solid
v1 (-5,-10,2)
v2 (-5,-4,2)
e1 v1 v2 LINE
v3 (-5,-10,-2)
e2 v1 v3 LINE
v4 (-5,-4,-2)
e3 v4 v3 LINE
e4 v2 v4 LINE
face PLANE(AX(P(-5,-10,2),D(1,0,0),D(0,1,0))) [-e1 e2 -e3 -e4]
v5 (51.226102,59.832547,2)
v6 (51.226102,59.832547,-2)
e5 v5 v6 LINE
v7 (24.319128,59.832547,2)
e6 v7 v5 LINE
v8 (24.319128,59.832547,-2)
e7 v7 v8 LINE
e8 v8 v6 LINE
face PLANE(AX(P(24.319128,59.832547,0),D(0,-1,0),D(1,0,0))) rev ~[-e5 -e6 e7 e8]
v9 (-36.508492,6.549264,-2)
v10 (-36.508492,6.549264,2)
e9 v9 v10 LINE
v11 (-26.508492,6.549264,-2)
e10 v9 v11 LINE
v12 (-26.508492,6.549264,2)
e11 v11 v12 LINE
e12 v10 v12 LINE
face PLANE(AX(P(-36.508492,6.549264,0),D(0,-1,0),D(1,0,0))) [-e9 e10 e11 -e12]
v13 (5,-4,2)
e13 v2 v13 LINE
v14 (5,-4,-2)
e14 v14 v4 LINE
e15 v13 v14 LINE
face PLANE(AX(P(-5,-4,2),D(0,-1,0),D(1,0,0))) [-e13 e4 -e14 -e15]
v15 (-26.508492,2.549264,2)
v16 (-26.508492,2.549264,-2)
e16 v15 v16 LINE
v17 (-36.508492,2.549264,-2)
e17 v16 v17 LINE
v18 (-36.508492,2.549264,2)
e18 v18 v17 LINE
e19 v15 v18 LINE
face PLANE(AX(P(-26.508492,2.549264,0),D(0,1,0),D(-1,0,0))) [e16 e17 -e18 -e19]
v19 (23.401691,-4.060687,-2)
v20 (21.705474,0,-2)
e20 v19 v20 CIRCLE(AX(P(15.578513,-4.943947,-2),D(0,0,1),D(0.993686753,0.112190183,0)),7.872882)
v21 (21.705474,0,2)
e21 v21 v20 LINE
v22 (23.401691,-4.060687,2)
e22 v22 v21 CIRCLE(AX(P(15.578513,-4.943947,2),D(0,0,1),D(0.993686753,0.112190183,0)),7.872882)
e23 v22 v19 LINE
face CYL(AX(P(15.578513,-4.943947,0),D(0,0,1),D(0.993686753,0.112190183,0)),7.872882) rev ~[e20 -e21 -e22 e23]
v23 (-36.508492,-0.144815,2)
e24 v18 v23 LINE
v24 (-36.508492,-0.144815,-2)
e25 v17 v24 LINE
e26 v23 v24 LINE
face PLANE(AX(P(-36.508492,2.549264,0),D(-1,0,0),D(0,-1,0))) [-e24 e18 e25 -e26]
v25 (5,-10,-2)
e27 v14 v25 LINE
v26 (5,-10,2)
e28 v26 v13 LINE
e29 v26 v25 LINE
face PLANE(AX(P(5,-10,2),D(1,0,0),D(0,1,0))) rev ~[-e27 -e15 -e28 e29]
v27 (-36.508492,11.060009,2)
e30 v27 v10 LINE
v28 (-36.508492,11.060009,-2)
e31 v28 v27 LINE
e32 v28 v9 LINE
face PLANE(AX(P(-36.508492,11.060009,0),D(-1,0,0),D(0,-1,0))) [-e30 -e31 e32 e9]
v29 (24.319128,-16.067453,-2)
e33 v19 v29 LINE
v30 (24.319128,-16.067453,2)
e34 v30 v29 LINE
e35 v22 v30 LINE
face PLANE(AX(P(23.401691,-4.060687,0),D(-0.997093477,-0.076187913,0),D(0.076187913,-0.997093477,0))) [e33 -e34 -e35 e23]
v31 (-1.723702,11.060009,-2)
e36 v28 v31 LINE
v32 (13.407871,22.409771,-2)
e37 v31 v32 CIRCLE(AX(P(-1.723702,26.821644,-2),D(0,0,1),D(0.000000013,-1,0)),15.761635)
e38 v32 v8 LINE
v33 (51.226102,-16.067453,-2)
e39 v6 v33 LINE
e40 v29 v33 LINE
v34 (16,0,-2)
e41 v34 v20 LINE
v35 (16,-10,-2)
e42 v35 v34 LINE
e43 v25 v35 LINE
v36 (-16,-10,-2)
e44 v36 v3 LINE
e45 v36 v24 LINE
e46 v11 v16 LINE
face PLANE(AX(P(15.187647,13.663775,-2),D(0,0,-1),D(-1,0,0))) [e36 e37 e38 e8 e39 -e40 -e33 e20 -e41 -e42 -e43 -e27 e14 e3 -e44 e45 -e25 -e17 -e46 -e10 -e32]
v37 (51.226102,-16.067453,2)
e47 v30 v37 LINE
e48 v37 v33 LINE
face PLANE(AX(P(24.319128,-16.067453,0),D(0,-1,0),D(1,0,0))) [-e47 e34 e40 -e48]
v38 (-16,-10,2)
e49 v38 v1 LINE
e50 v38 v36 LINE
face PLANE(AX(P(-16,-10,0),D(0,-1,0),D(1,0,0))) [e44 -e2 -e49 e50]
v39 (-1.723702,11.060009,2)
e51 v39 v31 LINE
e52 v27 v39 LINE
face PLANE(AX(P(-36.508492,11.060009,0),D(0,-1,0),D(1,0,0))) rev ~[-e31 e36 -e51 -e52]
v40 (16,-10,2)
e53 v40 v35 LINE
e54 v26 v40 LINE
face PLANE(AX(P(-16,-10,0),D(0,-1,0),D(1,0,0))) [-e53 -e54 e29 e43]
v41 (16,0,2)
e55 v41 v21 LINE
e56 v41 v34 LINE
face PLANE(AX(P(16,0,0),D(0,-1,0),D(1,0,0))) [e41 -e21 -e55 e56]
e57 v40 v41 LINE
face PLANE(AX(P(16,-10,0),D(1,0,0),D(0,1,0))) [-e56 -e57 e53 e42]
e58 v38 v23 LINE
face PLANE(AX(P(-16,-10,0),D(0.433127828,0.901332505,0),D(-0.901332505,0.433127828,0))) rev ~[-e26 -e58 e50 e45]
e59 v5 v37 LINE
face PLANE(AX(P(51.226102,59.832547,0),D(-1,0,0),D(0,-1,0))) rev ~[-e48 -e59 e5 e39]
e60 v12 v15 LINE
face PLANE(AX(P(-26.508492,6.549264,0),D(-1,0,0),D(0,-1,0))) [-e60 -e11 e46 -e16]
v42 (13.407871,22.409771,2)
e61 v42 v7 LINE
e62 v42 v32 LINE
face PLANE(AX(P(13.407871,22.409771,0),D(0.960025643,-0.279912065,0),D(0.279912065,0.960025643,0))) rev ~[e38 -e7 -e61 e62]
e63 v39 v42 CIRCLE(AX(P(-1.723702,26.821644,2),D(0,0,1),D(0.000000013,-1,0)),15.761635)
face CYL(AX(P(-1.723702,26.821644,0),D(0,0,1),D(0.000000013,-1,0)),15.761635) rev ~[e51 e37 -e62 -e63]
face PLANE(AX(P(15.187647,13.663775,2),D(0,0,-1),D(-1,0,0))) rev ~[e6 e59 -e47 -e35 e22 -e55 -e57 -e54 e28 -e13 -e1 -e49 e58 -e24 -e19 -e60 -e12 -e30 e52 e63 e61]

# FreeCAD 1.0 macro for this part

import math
import FreeCAD as App
import Part
import Sketcher
from FreeCAD import Vector
Q = App.Units.Quantity


def add_polygon(sketch, points):
    """Adds a closed chain of lines whose ends are joined by coincident constraints."""
    first, n = sketch.GeometryCount, len(points)
    for a, b in zip(points, points[1:] + points[:1]):
        sketch.addGeometry(Part.LineSegment(App.Vector(*a, 0), App.Vector(*b, 0)), False)
    for i in range(n):
        sketch.addConstraint(Sketcher.Constraint("Coincident", first + i, 2, first + (i + 1) % n, 1))

doc = App.newDocument("Part")
body = doc.addObject("PartDesign::Body", "Body")

sketch1 = body.newObject("Sketcher::SketchObject", "Sketch")
sketch1.AttachmentSupport = (doc.getObject("XY_Plane"), [""])
sketch1.MapMode = "FlatFace"
sketch1.addGeometry([
    Part.LineSegment(Vector(-1.723702, 11.060009, 0), Vector(-36.508492, 11.060009, 0)),
    Part.LineSegment(Vector(-36.508492, 11.060009, 0), Vector(-36.508492, 6.549264, 0)),
    Part.LineSegment(Vector(-36.508492, 6.549264, 0), Vector(-26.508492, 6.549264, 0)),
    Part.LineSegment(Vector(-26.508492, 6.549264, 0), Vector(-26.508492, 2.549264, 0)),
    Part.LineSegment(Vector(-26.508492, 2.549264, 0), Vector(-36.508492, 2.549264, 0)),
    Part.LineSegment(Vector(-36.508492, 2.549264, 0), Vector(-36.508492, -0.144815, 0)),
    Part.LineSegment(Vector(-36.508492, -0.144815, 0), Vector(-16, -10, 0)),
    Part.LineSegment(Vector(-16, -10, 0), Vector(16, -10, 0)),
    Part.LineSegment(Vector(16, -10, 0), Vector(16, 0, 0)),
    Part.LineSegment(Vector(16, 0, 0), Vector(21.705474, 0, 0)),
    Part.ArcOfCircle(Part.Circle(Vector(15.578513, -4.943947, 0), Vector(0, 0, 1), 7.872882), math.radians(6.441585), math.radians(38.900637)),
    Part.LineSegment(Vector(23.401691, -4.060687, 0), Vector(24.319128, -16.067453, 0)),
    Part.LineSegment(Vector(24.319128, -16.067453, 0), Vector(51.226102, -16.067453, 0)),
    Part.LineSegment(Vector(51.226102, -16.067453, 0), Vector(51.226102, 59.832547, 0)),
    Part.LineSegment(Vector(51.226102, 59.832547, 0), Vector(24.319128, 59.832547, 0)),
    Part.LineSegment(Vector(24.319128, 59.832547, 0), Vector(13.407871, 22.409771, 0)),
    Part.ArcOfCircle(Part.Circle(Vector(-1.723702, 26.821644, 0), Vector(0, 0, 1), 15.761635), math.radians(-89.999999), math.radians(-16.25496)),
], False)
sketch1.addConstraint([
    Sketcher.Constraint("Coincident", 0, 2, 1, 1),
    Sketcher.Constraint("Coincident", 1, 2, 2, 1),
    Sketcher.Constraint("Coincident", 2, 2, 3, 1),
    Sketcher.Constraint("Coincident", 3, 2, 4, 1),
    Sketcher.Constraint("Coincident", 4, 2, 5, 1),
    Sketcher.Constraint("Coincident", 5, 2, 6, 1),
    Sketcher.Constraint("Coincident", 6, 2, 7, 1),
    Sketcher.Constraint("Coincident", 7, 2, 8, 1),
    Sketcher.Constraint("Coincident", 8, 2, 9, 1),
    Sketcher.Constraint("Coincident", 9, 2, 10, 2),
    Sketcher.Constraint("Coincident", 10, 1, 11, 1),
    Sketcher.Constraint("Coincident", 11, 2, 12, 1),
    Sketcher.Constraint("Coincident", 12, 2, 13, 1),
    Sketcher.Constraint("Coincident", 13, 2, 14, 1),
    Sketcher.Constraint("Coincident", 14, 2, 15, 1),
    Sketcher.Constraint("Tangent", 15, 2, 16, 2),
    Sketcher.Constraint("Tangent", 16, 1, 0, 1),
    Sketcher.Constraint("Horizontal", 0),
    Sketcher.Constraint("Vertical", 1),
    Sketcher.Constraint("Horizontal", 2),
    Sketcher.Constraint("Vertical", 3),
    Sketcher.Constraint("Horizontal", 4),
    Sketcher.Constraint("Vertical", 5),
    Sketcher.Constraint("Horizontal", 7),
    Sketcher.Constraint("Vertical", 8),
    Sketcher.Constraint("Horizontal", 9),
    Sketcher.Constraint("Horizontal", 12),
    Sketcher.Constraint("Vertical", 13),
    Sketcher.Constraint("Horizontal", 14),
    Sketcher.Constraint("PointOnObject", 8, 2, -1),
    Sketcher.Constraint("Vertical", 1, 2, 4, 2),
    Sketcher.Constraint("Vertical", 11, 2, 14, 2),
    Sketcher.Constraint("Equal", 4, 8),
    Sketcher.Constraint("DistanceX", 2, 1, 2, 2, Q("10 mm")),
    Sketcher.Constraint("DistanceX", 7, 1, 7, 2, Q("32 mm")),
    Sketcher.Constraint("DistanceY", 3, 2, 3, 1, Q("4 mm")),
    Sketcher.Constraint("DistanceY", 13, 1, 13, 2, Q("75.9 mm")),
    Sketcher.Constraint("DistanceX", 6, 2, -1, 1, Q("16 mm")),
    Sketcher.Constraint("Radius", 10, Q("7.872882 mm")),
    Sketcher.Constraint("Radius", 16, Q("15.761635 mm")),
    Sketcher.Constraint("DistanceX", 0, 2, 0, 1, Q("34.78479 mm")),
    Sketcher.Constraint("DistanceY", 5, 2, 5, 1, Q("2.694079 mm")),
    Sketcher.Constraint("DistanceX", -1, 1, 12, 2, Q("51.226102 mm")),
    Sketcher.Constraint("DistanceX", 16, 1, -1, 1, Q("1.723702 mm")),
    Sketcher.Constraint("DistanceX", 9, 1, 9, 2, Q("5.705474 mm")),
    Sketcher.Constraint("DistanceX", 12, 1, 12, 2, Q("26.906974 mm")),
    Sketcher.Constraint("DistanceY", 1, 2, 1, 1, Q("4.510745 mm")),
    Sketcher.Constraint("DistanceY", -1, 1, 0, 2, Q("11.060009 mm")),
    Sketcher.Constraint("DistanceX", -1, 1, 10, 1, Q("23.401691 mm")),
    Sketcher.Constraint("DistanceX", -1, 1, 15, 2, Q("13.407871 mm")),
    Sketcher.Constraint("DistanceY", 10, 3, 16, 3, Q("31.765591 mm")),
])
pad1 = body.newObject("PartDesign::Pad", "Pad")
pad1.Profile = sketch1
pad1.Length = 4
pad1.Midplane = True

sketch2 = body.newObject("Sketcher::SketchObject", "Sketch001")
sketch2.AttachmentSupport = (doc.getObject("XY_Plane"), [""])
sketch2.MapMode = "FlatFace"
sketch2.AttachmentOffset = App.Placement(Vector(0, 0, 2), App.Rotation())
add_polygon(sketch2, [(-5, -4), (-5, -10), (5, -10), (5, -4)])
sketch2.addConstraint([
    Sketcher.Constraint("Vertical", 0),
    Sketcher.Constraint("Horizontal", 1),
    Sketcher.Constraint("Vertical", 2),
    Sketcher.Constraint("Horizontal", 3),
    Sketcher.Constraint("DistanceX", 1, 1, 1, 2, Q("10 mm")),
    Sketcher.Constraint("DistanceY", 0, 2, 0, 1, Q("6 mm")),
    Sketcher.Constraint("DistanceX", 0, 2, -1, 1, Q("5 mm")),
    Sketcher.Constraint("DistanceY", 0, 2, -1, 1, Q("10 mm")),
])
pocket1 = body.newObject("PartDesign::Pocket", "Pocket")
pocket1.Profile = sketch2
pocket1.Type = "ThroughAll"

doc.recompute()
